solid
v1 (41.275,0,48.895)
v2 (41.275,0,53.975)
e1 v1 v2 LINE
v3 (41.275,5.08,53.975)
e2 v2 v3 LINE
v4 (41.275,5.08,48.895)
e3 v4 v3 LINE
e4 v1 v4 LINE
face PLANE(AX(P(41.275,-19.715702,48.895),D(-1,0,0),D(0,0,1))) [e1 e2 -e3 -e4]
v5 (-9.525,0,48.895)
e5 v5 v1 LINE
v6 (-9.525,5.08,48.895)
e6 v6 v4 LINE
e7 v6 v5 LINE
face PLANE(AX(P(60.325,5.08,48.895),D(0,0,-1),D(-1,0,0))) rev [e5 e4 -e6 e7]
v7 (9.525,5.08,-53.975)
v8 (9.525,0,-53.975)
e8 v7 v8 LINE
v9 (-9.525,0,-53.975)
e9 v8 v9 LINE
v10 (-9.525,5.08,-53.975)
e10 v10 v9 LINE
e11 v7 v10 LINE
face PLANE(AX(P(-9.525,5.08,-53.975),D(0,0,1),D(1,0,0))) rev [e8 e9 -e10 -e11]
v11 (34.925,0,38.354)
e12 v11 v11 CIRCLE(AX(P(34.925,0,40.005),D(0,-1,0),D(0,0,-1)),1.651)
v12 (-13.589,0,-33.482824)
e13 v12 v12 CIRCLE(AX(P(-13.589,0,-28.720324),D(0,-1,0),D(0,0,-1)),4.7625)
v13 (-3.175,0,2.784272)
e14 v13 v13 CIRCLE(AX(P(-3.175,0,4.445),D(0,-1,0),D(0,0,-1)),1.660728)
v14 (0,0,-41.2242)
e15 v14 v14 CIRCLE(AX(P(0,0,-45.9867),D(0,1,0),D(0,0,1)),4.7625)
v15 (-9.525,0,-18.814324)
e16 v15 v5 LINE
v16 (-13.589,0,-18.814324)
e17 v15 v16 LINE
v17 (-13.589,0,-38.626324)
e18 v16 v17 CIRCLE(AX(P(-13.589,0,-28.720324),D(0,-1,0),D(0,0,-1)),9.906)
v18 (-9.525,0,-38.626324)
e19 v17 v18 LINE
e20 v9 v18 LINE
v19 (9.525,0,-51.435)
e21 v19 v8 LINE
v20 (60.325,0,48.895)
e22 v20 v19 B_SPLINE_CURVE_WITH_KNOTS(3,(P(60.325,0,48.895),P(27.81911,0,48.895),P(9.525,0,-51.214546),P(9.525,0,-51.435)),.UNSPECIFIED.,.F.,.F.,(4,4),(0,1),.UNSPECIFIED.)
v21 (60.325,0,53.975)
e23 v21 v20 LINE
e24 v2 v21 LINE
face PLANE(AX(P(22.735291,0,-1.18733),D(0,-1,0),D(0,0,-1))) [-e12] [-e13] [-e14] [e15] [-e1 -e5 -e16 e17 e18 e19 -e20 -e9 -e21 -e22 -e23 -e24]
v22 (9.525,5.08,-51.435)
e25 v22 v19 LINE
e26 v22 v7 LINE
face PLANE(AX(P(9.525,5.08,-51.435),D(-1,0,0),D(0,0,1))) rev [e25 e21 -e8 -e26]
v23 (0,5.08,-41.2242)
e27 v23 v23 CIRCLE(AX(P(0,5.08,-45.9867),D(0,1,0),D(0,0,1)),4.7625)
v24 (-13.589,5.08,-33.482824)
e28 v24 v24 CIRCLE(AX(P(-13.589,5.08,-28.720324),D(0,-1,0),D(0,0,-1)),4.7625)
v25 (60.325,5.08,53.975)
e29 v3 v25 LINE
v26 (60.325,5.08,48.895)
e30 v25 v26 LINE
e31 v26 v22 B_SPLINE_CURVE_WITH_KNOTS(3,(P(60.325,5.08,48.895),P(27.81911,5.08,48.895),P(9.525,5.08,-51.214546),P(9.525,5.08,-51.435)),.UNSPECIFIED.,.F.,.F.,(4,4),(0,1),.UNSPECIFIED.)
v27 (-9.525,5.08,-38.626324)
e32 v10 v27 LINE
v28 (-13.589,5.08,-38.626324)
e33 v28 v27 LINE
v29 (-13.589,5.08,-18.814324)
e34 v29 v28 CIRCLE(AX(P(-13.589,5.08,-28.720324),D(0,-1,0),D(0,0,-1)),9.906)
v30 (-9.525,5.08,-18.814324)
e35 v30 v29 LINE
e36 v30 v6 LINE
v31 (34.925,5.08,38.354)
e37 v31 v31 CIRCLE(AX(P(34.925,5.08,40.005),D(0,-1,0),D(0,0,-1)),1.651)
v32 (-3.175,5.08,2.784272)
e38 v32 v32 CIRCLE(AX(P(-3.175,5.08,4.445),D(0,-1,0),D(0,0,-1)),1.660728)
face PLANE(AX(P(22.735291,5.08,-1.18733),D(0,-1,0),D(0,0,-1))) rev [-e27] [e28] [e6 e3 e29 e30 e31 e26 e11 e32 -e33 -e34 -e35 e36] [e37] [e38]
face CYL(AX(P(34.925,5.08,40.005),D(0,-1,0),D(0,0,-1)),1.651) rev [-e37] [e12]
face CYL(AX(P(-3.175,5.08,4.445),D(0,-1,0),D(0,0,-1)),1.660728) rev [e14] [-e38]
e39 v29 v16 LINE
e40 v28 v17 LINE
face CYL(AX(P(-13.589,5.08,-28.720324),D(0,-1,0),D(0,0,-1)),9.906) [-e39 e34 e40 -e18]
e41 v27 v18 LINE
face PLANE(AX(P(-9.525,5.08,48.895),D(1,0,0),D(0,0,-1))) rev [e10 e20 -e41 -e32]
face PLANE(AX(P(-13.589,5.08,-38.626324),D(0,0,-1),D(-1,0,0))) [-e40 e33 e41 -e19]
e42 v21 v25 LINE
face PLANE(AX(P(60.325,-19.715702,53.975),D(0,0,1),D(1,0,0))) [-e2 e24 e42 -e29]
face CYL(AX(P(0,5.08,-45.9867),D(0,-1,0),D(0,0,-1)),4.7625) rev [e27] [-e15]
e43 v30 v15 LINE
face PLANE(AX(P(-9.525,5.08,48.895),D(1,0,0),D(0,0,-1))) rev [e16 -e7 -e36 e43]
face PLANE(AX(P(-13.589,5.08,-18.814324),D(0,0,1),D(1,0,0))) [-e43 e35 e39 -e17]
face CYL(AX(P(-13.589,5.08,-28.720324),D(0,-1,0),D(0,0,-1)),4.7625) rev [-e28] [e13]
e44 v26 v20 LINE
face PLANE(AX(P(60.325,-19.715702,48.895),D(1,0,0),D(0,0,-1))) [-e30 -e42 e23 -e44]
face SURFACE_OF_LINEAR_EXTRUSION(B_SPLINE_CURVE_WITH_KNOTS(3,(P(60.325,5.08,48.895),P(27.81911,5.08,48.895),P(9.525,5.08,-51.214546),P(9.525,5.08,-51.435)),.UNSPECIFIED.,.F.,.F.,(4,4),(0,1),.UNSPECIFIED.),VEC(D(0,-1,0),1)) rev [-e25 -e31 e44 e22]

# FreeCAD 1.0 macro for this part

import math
import FreeCAD as App
import Part
import Sketcher
Q = App.Units.Quantity

doc = App.newDocument("Part")
body = doc.addObject("PartDesign::Body", "Body")

# Sketch on XZ plane
sketch1 = body.newObject("Sketcher::SketchObject", "Sketch")
sketch1.AttachmentSupport = (doc.getObject("XZ_Plane"), [""])
sketch1.MapMode = "FlatFace"
sketch1.addGeometry([
    Part.LineSegment(App.Vector(9.525, -53.975, 0), App.Vector(-9.525, -53.975, 0)),  # 0
    Part.LineSegment(App.Vector(-9.525, -53.975, 0), App.Vector(-9.525, 48.895, 0)),  # 1
    Part.LineSegment(App.Vector(-9.525, 48.895, 0), App.Vector(60.325, 48.895, 0)),  # 2
    Part.BSplineCurve([App.Vector(9.525, -51.435, 0), App.Vector(9.525, -51.214546, 0), App.Vector(27.81911, 48.895, 0), App.Vector(60.325, 48.895, 0)], [4, 4], [0, 1], False, 3, [1, 1, 1, 1], False),  # 3
    Part.LineSegment(App.Vector(9.525, -51.435, 0), App.Vector(9.525, -53.975, 0)),  # 4
    Part.Circle(App.Vector(0, -45.9867, 0), App.Vector(0, 0, 1), 4.7625),  # 5
], False)
sketch1.addConstraint([
    Sketcher.Constraint("Block", 3),
    Sketcher.Constraint("Coincident", 0, 2, 1, 1),
    Sketcher.Constraint("Coincident", 1, 2, 2, 1),
    Sketcher.Constraint("Coincident", 2, 2, 3, 2),
    Sketcher.Constraint("Coincident", 3, 1, 4, 1),
    Sketcher.Constraint("Coincident", 4, 2, 0, 1),
    Sketcher.Constraint("Horizontal", 0),
    Sketcher.Constraint("Vertical", 1),
    Sketcher.Constraint("Horizontal", 2),
    Sketcher.Constraint("Vertical", 4),
    Sketcher.Constraint("PointOnObject", 5, 3, -2),
    Sketcher.Constraint("Diameter", 5, Q("0.375 in")),
    Sketcher.Constraint("DistanceY", 4, 2, 4, 1, Q("0.1 in")),
    Sketcher.Constraint("DistanceX", 0, 2, 0, 1, Q("0.75 in")),
    Sketcher.Constraint("DistanceY", 5, 3, -1, 1, Q("1.8105 in")),
])
pad1 = body.newObject("PartDesign::Pad", "Pad")
pad1.Profile = sketch1
pad1.Length = Q("0.2 in")
pad1.Reversed = True

# Sketch on XZ plane
sketch2 = body.newObject("Sketcher::SketchObject", "Sketch001")
sketch2.AttachmentSupport = (doc.getObject("XZ_Plane"), [""])
sketch2.MapMode = "FlatFace"
sketch2.AttachmentOffset = App.Placement(App.Vector(0, 0, -0.2 * 25.4), App.Rotation())
sketch2.addGeometry([
    Part.LineSegment(App.Vector(41.275, 48.895, 0), App.Vector(41.275, 53.975, 0)),
    Part.LineSegment(App.Vector(41.275, 53.975, 0), App.Vector(60.325, 53.975, 0)),
    Part.LineSegment(App.Vector(60.325, 53.975, 0), App.Vector(60.325, 48.895, 0)),
    Part.LineSegment(App.Vector(60.325, 48.895, 0), App.Vector(41.275, 48.895, 0)),
], False)
sketch2.addConstraint([
    Sketcher.Constraint("Coincident", 0, 2, 1, 1),
    Sketcher.Constraint("Coincident", 1, 2, 2, 1),
    Sketcher.Constraint("Coincident", 2, 2, 3, 1),
    Sketcher.Constraint("Coincident", 3, 2, 0, 1),
    Sketcher.Constraint("Vertical", 0),
    Sketcher.Constraint("Horizontal", 1),
    Sketcher.Constraint("Vertical", 2),
    Sketcher.Constraint("Horizontal", 3),
    Sketcher.Constraint("DistanceY", 0, 1, 0, 2, Q("0.2 in")),
    Sketcher.Constraint("DistanceX", 1, 1, 1, 2, Q("0.75 in")),
    Sketcher.Constraint("DistanceX", -1, 1, 0, 2, Q("1.625 in")),
    Sketcher.Constraint("DistanceY", -1, 1, 0, 2, Q("2.125 in")),
])
pad2 = body.newObject("PartDesign::Pad", "Pad001")
pad2.Profile = sketch2
pad2.Length = Q("0.2 in")

# Sketch on XZ plane
sketch3 = body.newObject("Sketcher::SketchObject", "Sketch002")
sketch3.AttachmentSupport = (doc.getObject("XZ_Plane"), [""])
sketch3.MapMode = "FlatFace"
sketch3.addGeometry([
    Part.Circle(App.Vector(34.925, 40.005, 0), App.Vector(0, 0, 1), 1.651),
    Part.Circle(App.Vector(-3.175, 4.445, 0), App.Vector(0, 0, 1), 1.660728),
], False)
sketch3.addConstraint([
    Sketcher.Constraint("Diameter", 0, Q("0.13 in")),
    Sketcher.Constraint("DistanceX", 1, 3, 0, 3, Q("1.5 in")),
    Sketcher.Constraint("DistanceY", 1, 3, 0, 3, Q("1.4 in")),
    Sketcher.Constraint("DistanceX", -1, 1, 0, 3, Q("1.375 in")),
    Sketcher.Constraint("DistanceY", -1, 1, 0, 3, Q("1.575 in")),
    Sketcher.Constraint("Diameter", 1, Q("3.321457 mm")),
])
pocket1 = body.newObject("PartDesign::Pocket", "Pocket")
pocket1.Profile = sketch3
pocket1.Type = "ThroughAll"
pocket1.Midplane = True

# Sketch on XZ plane
sketch4 = body.newObject("Sketcher::SketchObject", "Sketch003")
sketch4.AttachmentSupport = (doc.getObject("XZ_Plane"), [""])
sketch4.MapMode = "FlatFace"
sketch4.addGeometry([
    Part.LineSegment(App.Vector(-9.525, -18.814324, 0), App.Vector(-13.589, -18.814324, 0)),  # 0
    Part.ArcOfCircle(Part.Circle(App.Vector(-13.589, -28.720324, 0), App.Vector(0, 0, 1), 9.906), math.radians(90), math.radians(270)),  # 1
    Part.LineSegment(App.Vector(-13.589, -38.626324, 0), App.Vector(-9.525, -38.626324, 0)),  # 2
    Part.LineSegment(App.Vector(-9.525, -38.626324, 0), App.Vector(-9.525, -37.754301, 0)),  # 3
    Part.ArcOfCircle(Part.Circle(App.Vector(-13.589, -28.720324, 0), App.Vector(0, 0, 1), 9.906), math.radians(-65.779057), math.radians(65.779057)),  # 4
    Part.LineSegment(App.Vector(-9.525, -19.686347, 0), App.Vector(-9.525, -18.814324, 0)),  # 5
    Part.Circle(App.Vector(-13.589, -28.720324, 0), App.Vector(0, 0, 1), 4.7625),  # 6
], False)
sketch4.addConstraint([
    Sketcher.Constraint("Tangent", 0, 2, 1, 1),
    Sketcher.Constraint("Tangent", 1, 2, 2, 1),
    Sketcher.Constraint("Coincident", 2, 2, 3, 1),
    Sketcher.Constraint("Coincident", 3, 2, 4, 1),
    Sketcher.Constraint("Coincident", 4, 2, 5, 1),
    Sketcher.Constraint("Coincident", 5, 2, 0, 1),
    Sketcher.Constraint("Horizontal", 0),
    Sketcher.Constraint("Horizontal", 2),
    Sketcher.Constraint("Vertical", 3),
    Sketcher.Constraint("Vertical", 5),
    Sketcher.Constraint("Coincident", 4, 3, 1, 3),
    Sketcher.Constraint("Coincident", 6, 3, 1, 3),
    Sketcher.Constraint("Equal", 1, 4),
    Sketcher.Constraint("Vertical", 3, 2, 4, 2),
    Sketcher.Constraint("Radius", 1, Q("0.39 in")),
    Sketcher.Constraint("Diameter", 6, Q("0.375 in")),
    Sketcher.Constraint("DistanceX", 0, 2, 0, 1, Q("0.16 in")),
    Sketcher.Constraint("DistanceX", 1, 3, -1, 1, Q("0.535 in")),
    Sketcher.Constraint("DistanceY", 3, 2, -1, 1, Q("37.754301 mm")),
])
pad3 = body.newObject("PartDesign::Pad", "Pad002")
pad3.Profile = sketch4
pad3.Length = Q("0.2 in")
pad3.Reversed = True

# Sketch on XZ plane
sketch5 = body.newObject("Sketcher::SketchObject", "Sketch004")
sketch5.AttachmentSupport = (doc.getObject("XZ_Plane"), [""])
sketch5.MapMode = "FlatFace"
sketch5.AttachmentOffset = App.Placement(App.Vector(0, 0, -0.2 * 25.4), App.Rotation())
sketch5.addGeometry(Part.Circle(App.Vector(-13.589, -28.720324, 0), App.Vector(0, 0, 1), 4.7625), False)
sketch5.addConstraint([
    Sketcher.Constraint("Diameter", 0, Q("0.375 in")),
    Sketcher.Constraint("DistanceX", 0, 3, -1, 1, Q("0.535 in")),
    Sketcher.Constraint("DistanceY", 0, 3, -1, 1, Q("28.720324 mm")),
])
pocket2 = body.newObject("PartDesign::Pocket", "Pocket001")
pocket2.Profile = sketch5
pocket2.Type = "ThroughAll"
pocket2.Reversed = True

doc.recompute()
